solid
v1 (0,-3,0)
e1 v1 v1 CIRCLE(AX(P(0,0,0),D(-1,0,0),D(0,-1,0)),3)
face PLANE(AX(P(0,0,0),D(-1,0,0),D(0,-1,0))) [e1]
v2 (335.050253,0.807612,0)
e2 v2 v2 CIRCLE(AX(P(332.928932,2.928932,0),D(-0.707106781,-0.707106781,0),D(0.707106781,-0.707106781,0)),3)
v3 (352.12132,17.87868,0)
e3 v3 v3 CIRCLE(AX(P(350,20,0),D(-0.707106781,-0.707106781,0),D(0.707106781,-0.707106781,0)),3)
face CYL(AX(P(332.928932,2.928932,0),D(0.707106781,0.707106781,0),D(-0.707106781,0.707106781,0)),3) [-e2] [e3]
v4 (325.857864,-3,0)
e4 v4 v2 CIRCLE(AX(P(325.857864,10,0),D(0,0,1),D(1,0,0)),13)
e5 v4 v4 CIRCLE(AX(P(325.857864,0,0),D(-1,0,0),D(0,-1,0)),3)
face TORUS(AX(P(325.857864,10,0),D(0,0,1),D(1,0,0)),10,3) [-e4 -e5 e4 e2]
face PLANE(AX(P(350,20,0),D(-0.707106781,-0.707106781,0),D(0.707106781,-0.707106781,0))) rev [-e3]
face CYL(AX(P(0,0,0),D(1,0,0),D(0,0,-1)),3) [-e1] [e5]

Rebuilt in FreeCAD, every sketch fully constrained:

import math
import FreeCAD as App
import Part
import Sketcher
Q = App.Units.Quantity

doc = App.newDocument("Part")
params = doc.addObject("Spreadsheet::Sheet", "Params")
for row, (alias, value) in enumerate([
    ("sketch1_diameter", "6 mm"),
    ("sketch2_radius", "10 mm"),
], start=1):
    params.set(f"A{row}", alias)
    params.set(f"B{row}", "=" + value)
    params.setAlias(f"B{row}", alias)

body = doc.addObject("PartDesign::Body", "Body")

# Sketch on YZ plane
sketch1 = body.newObject("Sketcher::SketchObject", "Sketch")
sketch1.AttachmentSupport = (doc.getObject("YZ_Plane"), [""])
sketch1.MapMode = "FlatFace"
sketch1.addGeometry(Part.Circle(App.Vector(0, 0, 0), App.Vector(0, 0, 1), 3), False)
sketch1.addConstraint([
    Sketcher.Constraint("Coincident", 0, 3, -1, 1),
    Sketcher.Constraint("Diameter", 0, 6.0),
])
sketch1.setExpression("Constraints[1]", "Params.sketch1_diameter")

# Sketch on XY plane
sketch2 = body.newObject("Sketcher::SketchObject", "Sketch001")
sketch2.AttachmentSupport = (doc.getObject("XY_Plane"), [""])
sketch2.MapMode = "FlatFace"
sketch2.addGeometry([
    Part.LineSegment(App.Vector(0, 0, 0), App.Vector(325.857864, 0, 0)),
    Part.ArcOfCircle(Part.Circle(App.Vector(325.857864, 10, 0), App.Vector(0, 0, 1), 10), math.radians(-90), math.radians(-45)),
    Part.LineSegment(App.Vector(332.928932, 2.928932, 0), App.Vector(350, 20, 0)),
], False)
sketch2.addConstraint([
    Sketcher.Constraint("Tangent", 0, 2, 1, 1),
    Sketcher.Constraint("Tangent", 1, 2, 2, 1),
    Sketcher.Constraint("Horizontal", 0),
    Sketcher.Constraint("Coincident", 0, 1, -1, 1),
    Sketcher.Constraint("Radius", 1, 10.0),
    Sketcher.Constraint("Angle", 2, Q("45 deg")),
    Sketcher.Constraint("DistanceX", -1, 1, 2, 2, 350.0),
    Sketcher.Constraint("DistanceY", -1, 1, 2, 2, 20.0),
])
sketch2.setExpression("Constraints[4]", "Params.sketch2_radius")
doc.recompute()

additivepipe = body.newObject("PartDesign::AdditivePipe", "AdditivePipe")
additivepipe.Profile = sketch1
additivepipe.Spine = (sketch2, ["Edge1", "Edge2", "Edge3"])

doc.recompute()
